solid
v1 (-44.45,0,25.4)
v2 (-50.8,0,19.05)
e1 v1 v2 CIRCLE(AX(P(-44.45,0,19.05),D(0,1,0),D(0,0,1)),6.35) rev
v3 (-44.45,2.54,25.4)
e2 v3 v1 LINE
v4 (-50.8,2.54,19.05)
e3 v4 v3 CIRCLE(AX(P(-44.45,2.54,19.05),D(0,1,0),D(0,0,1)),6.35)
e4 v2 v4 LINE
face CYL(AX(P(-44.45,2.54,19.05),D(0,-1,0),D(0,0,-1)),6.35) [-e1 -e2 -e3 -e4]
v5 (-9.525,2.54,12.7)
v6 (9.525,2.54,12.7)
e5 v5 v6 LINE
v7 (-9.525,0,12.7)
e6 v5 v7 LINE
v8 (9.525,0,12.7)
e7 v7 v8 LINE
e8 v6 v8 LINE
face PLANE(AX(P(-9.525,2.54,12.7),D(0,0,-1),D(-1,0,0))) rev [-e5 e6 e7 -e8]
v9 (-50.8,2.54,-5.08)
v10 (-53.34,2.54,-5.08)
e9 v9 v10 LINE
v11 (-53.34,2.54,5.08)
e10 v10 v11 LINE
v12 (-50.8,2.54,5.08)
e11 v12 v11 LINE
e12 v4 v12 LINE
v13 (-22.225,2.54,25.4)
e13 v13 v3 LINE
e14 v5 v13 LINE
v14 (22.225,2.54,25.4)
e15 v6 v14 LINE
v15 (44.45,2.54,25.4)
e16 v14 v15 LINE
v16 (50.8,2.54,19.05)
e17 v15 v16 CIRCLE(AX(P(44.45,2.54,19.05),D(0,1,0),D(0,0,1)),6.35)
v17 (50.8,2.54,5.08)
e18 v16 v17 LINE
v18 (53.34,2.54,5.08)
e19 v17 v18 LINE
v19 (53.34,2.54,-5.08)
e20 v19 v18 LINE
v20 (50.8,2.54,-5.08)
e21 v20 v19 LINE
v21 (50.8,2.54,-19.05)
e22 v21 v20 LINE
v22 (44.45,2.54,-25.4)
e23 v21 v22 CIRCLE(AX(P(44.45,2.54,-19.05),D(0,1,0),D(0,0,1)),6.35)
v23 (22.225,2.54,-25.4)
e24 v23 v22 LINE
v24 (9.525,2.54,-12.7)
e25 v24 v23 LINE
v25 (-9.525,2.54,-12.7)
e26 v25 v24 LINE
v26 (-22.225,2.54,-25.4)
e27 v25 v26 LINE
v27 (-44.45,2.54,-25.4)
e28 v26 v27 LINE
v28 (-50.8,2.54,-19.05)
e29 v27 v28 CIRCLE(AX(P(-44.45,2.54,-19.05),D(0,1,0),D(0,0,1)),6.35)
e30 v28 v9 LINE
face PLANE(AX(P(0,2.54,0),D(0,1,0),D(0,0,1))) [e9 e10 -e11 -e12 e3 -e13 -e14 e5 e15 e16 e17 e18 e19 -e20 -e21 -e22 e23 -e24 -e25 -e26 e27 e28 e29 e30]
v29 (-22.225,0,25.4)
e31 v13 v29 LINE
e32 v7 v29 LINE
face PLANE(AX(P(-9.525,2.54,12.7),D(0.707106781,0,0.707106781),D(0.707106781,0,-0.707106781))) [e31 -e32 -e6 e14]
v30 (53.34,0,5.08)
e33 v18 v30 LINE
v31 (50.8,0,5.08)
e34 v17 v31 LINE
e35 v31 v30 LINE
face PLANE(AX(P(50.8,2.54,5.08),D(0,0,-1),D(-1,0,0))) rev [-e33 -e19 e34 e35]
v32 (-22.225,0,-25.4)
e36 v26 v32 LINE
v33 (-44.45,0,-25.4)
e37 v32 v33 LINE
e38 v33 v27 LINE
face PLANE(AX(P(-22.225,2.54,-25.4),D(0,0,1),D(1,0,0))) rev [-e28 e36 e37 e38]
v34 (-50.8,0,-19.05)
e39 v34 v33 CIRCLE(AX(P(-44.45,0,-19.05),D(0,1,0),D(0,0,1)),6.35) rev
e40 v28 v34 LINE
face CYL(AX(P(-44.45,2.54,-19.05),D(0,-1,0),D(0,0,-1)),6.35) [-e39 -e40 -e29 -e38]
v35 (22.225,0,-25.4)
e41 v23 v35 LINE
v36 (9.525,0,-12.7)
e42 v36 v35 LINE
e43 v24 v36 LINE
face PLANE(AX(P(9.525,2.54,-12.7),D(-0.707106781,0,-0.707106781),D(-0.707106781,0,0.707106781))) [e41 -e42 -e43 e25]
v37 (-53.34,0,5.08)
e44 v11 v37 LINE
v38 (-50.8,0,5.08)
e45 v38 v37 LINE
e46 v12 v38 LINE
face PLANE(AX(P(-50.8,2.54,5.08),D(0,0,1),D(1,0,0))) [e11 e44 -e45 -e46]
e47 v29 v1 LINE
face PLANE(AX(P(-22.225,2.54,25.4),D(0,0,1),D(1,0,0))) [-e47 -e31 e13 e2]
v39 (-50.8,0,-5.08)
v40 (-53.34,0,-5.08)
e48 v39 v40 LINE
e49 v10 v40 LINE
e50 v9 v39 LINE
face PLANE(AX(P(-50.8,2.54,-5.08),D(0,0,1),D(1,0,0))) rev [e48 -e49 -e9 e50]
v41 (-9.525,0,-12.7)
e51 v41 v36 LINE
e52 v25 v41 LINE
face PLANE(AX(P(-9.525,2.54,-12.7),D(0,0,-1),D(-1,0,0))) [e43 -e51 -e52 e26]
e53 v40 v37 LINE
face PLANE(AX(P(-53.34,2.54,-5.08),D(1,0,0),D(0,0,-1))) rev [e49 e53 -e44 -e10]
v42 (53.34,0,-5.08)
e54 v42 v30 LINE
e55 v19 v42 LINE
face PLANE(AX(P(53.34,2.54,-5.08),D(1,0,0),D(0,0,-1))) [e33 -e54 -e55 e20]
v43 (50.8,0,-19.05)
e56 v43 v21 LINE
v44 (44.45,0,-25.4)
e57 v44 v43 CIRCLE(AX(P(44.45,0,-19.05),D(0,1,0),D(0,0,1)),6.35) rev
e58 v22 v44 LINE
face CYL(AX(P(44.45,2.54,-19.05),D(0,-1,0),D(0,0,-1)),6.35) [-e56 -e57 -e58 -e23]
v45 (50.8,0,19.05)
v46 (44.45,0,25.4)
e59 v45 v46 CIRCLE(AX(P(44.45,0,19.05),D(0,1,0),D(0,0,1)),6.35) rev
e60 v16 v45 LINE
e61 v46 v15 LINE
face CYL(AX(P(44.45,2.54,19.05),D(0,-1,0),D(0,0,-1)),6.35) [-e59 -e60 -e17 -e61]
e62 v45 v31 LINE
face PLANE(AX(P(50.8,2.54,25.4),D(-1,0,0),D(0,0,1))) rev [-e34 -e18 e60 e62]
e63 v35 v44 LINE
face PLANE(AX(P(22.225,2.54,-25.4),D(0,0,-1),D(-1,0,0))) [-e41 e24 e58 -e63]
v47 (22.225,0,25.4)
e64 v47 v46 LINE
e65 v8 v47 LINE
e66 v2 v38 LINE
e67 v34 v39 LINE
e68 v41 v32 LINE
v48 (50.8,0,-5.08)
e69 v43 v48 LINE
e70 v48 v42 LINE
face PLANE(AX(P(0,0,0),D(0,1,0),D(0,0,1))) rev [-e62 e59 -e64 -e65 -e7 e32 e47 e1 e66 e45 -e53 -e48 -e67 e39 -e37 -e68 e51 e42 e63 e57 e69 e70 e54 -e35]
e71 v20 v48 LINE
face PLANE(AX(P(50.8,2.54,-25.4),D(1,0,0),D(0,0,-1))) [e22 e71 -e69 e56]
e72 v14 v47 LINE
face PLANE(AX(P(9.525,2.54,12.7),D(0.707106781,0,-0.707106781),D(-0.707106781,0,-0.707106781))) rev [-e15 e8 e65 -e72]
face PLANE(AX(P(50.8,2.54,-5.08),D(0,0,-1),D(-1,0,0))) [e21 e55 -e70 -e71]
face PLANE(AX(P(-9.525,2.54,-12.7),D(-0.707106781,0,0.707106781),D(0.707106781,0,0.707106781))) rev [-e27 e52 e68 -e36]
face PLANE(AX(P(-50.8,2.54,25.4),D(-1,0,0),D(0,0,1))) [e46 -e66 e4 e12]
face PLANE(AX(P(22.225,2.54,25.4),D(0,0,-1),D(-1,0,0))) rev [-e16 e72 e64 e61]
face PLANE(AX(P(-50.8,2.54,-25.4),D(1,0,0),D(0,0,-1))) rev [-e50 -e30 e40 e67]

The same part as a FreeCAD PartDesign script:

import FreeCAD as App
import Part
import Sketcher

V = App.Vector
Q = App.Units.Quantity


def edges_at(feature, points):
    """Names of the edges that pass closest to the given points."""
    edges = feature.Shape.Edges
    near = lambda p: min(range(len(edges)), key=lambda i: edges[i].distToShape(Part.Vertex(*p))[0])
    return sorted({f"Edge{near(p) + 1}" for p in points})


def add_polygon(sketch, points):
    """Adds a closed chain of lines whose ends are joined by coincident constraints."""
    first, n = sketch.GeometryCount, len(points)
    for a, b in zip(points, points[1:] + points[:1]):
        sketch.addGeometry(Part.LineSegment(App.Vector(*a, 0), App.Vector(*b, 0)), False)
    for i in range(n):
        sketch.addConstraint(Sketcher.Constraint("Coincident", first + i, 2, first + (i + 1) % n, 1))

doc = App.newDocument("Part")
params = doc.addObject("Spreadsheet::Sheet", "Params")
for row, (alias, value) in enumerate([
    ("sketch1_width", "0.1 in"),
    ("sketch1_height", "0.8 in"),
    ("sketch1_height2", "0.4 in"),
    ("sketch1_width2", "0.75 in"),
    ("pad1_length", "0.1 in"),
    ("fillet_radius", "0.25 in"),
], start=1):
    params.set(f"A{row}", alias)
    params.set(f"B{row}", "=" + value)
    params.setAlias(f"B{row}", alias)

body = doc.addObject("PartDesign::Body", "Body")

# Sketch on XZ plane
sketch1 = doc.addObject("Sketcher::SketchObject", "Sketch")
body.addObject(sketch1)
sketch1.AttachmentSupport = (doc.XZ_Plane, [""])
sketch1.MapMode = "FlatFace"
add_polygon(sketch1, [(-9.5, -12.7), (-22.2, -25.4), (-50.8, -25.4), (-50.8, -5.1), (-53.3, -5.1), (-53.3, 5.1), (-50.8, 5.1), (-50.8, 25.4), (-22.2, 25.4), (-9.5, 12.7), (9.5, 12.7), (22.2, 25.4), (50.8, 25.4), (50.8, 5.1), (53.3, 5.1), (53.3, -5.1), (50.8, -5.1), (50.8, -25.4), (22.2, -25.4), (9.5, -12.7)])  # lines 0-19
sketch1.addConstraint([
    Sketcher.Constraint("Horizontal", 1),
    Sketcher.Constraint("Vertical", 2),
    Sketcher.Constraint("Horizontal", 3),
    Sketcher.Constraint("Vertical", 4),
    Sketcher.Constraint("Horizontal", 5),
    Sketcher.Constraint("Vertical", 6),
    Sketcher.Constraint("Horizontal", 7),
    Sketcher.Constraint("Horizontal", 9),
    Sketcher.Constraint("Horizontal", 11),
    Sketcher.Constraint("Vertical", 12),
    Sketcher.Constraint("Horizontal", 13),
    Sketcher.Constraint("Vertical", 14),
    Sketcher.Constraint("Horizontal", 15),
    Sketcher.Constraint("Vertical", 16),
    Sketcher.Constraint("Horizontal", 17),
    Sketcher.Constraint("Horizontal", 19),
    Sketcher.Constraint("Symmetric", 0, 2, 10, 2, -1, 1),
    Sketcher.Constraint("Symmetric", 2, 2, 12, 2, -1, 1),
    Sketcher.Constraint("Symmetric", 4, 2, 14, 2, -1, 1),
    Sketcher.Constraint("Symmetric", 6, 2, 16, 2, -1, 1),
    Sketcher.Constraint("Symmetric", 8, 2, 18, 2, -1, 1),
    Sketcher.Constraint("Symmetric", 7, 2, 10, 2, -2),
    Sketcher.Constraint("Symmetric", 5, 2, 12, 2, -2),
    Sketcher.Constraint("Perpendicular", 0, 8),
    Sketcher.Constraint("Perpendicular", 8, 10),
    Sketcher.Constraint("Perpendicular", 10, 18),
    Sketcher.Constraint("Vertical", 9, 2, 18, 2),
    Sketcher.Constraint("DistanceX", 3, 2, 3, 1, Q("0.1 in")),
    Sketcher.Constraint("DistanceY", 2, 1, 2, 2, Q("0.8 in")),
    Sketcher.Constraint("DistanceY", 4, 1, 4, 2, Q("0.4 in")),
    Sketcher.Constraint("DistanceX", 1, 2, -1, 1, Q("2 in")),
    Sketcher.Constraint("DistanceY", 18, 2, 9, 2, Q("1 in")),
    Sketcher.Constraint("DistanceX", 9, 1, 9, 2, Q("0.75 in")),
])
sketch1.setExpression("Constraints[47]", "Params.sketch1_width")
sketch1.setExpression("Constraints[48]", "Params.sketch1_height")
sketch1.setExpression("Constraints[49]", "Params.sketch1_height2")
sketch1.setExpression("Constraints[52]", "Params.sketch1_width2")
pad1 = doc.addObject("PartDesign::Pad", "Pad")
body.addObject(pad1)
pad1.Profile = sketch1
pad1.setExpression("Length", "Params.pad1_length")
pad1.Reversed = True
doc.recompute()

fillet = doc.addObject("PartDesign::Fillet", "Fillet")
body.addObject(fillet)
fillet.Base = (pad1, edges_at(pad1, [
    (50.8, 1.27, -25.4),
    (50.8, 1.27, 25.4),
    (-50.8, 1.27, 25.4),
    (-50.8, 1.27, -25.4),
]))
fillet.setExpression("Radius", "Params.fillet_radius")

doc.recompute()
